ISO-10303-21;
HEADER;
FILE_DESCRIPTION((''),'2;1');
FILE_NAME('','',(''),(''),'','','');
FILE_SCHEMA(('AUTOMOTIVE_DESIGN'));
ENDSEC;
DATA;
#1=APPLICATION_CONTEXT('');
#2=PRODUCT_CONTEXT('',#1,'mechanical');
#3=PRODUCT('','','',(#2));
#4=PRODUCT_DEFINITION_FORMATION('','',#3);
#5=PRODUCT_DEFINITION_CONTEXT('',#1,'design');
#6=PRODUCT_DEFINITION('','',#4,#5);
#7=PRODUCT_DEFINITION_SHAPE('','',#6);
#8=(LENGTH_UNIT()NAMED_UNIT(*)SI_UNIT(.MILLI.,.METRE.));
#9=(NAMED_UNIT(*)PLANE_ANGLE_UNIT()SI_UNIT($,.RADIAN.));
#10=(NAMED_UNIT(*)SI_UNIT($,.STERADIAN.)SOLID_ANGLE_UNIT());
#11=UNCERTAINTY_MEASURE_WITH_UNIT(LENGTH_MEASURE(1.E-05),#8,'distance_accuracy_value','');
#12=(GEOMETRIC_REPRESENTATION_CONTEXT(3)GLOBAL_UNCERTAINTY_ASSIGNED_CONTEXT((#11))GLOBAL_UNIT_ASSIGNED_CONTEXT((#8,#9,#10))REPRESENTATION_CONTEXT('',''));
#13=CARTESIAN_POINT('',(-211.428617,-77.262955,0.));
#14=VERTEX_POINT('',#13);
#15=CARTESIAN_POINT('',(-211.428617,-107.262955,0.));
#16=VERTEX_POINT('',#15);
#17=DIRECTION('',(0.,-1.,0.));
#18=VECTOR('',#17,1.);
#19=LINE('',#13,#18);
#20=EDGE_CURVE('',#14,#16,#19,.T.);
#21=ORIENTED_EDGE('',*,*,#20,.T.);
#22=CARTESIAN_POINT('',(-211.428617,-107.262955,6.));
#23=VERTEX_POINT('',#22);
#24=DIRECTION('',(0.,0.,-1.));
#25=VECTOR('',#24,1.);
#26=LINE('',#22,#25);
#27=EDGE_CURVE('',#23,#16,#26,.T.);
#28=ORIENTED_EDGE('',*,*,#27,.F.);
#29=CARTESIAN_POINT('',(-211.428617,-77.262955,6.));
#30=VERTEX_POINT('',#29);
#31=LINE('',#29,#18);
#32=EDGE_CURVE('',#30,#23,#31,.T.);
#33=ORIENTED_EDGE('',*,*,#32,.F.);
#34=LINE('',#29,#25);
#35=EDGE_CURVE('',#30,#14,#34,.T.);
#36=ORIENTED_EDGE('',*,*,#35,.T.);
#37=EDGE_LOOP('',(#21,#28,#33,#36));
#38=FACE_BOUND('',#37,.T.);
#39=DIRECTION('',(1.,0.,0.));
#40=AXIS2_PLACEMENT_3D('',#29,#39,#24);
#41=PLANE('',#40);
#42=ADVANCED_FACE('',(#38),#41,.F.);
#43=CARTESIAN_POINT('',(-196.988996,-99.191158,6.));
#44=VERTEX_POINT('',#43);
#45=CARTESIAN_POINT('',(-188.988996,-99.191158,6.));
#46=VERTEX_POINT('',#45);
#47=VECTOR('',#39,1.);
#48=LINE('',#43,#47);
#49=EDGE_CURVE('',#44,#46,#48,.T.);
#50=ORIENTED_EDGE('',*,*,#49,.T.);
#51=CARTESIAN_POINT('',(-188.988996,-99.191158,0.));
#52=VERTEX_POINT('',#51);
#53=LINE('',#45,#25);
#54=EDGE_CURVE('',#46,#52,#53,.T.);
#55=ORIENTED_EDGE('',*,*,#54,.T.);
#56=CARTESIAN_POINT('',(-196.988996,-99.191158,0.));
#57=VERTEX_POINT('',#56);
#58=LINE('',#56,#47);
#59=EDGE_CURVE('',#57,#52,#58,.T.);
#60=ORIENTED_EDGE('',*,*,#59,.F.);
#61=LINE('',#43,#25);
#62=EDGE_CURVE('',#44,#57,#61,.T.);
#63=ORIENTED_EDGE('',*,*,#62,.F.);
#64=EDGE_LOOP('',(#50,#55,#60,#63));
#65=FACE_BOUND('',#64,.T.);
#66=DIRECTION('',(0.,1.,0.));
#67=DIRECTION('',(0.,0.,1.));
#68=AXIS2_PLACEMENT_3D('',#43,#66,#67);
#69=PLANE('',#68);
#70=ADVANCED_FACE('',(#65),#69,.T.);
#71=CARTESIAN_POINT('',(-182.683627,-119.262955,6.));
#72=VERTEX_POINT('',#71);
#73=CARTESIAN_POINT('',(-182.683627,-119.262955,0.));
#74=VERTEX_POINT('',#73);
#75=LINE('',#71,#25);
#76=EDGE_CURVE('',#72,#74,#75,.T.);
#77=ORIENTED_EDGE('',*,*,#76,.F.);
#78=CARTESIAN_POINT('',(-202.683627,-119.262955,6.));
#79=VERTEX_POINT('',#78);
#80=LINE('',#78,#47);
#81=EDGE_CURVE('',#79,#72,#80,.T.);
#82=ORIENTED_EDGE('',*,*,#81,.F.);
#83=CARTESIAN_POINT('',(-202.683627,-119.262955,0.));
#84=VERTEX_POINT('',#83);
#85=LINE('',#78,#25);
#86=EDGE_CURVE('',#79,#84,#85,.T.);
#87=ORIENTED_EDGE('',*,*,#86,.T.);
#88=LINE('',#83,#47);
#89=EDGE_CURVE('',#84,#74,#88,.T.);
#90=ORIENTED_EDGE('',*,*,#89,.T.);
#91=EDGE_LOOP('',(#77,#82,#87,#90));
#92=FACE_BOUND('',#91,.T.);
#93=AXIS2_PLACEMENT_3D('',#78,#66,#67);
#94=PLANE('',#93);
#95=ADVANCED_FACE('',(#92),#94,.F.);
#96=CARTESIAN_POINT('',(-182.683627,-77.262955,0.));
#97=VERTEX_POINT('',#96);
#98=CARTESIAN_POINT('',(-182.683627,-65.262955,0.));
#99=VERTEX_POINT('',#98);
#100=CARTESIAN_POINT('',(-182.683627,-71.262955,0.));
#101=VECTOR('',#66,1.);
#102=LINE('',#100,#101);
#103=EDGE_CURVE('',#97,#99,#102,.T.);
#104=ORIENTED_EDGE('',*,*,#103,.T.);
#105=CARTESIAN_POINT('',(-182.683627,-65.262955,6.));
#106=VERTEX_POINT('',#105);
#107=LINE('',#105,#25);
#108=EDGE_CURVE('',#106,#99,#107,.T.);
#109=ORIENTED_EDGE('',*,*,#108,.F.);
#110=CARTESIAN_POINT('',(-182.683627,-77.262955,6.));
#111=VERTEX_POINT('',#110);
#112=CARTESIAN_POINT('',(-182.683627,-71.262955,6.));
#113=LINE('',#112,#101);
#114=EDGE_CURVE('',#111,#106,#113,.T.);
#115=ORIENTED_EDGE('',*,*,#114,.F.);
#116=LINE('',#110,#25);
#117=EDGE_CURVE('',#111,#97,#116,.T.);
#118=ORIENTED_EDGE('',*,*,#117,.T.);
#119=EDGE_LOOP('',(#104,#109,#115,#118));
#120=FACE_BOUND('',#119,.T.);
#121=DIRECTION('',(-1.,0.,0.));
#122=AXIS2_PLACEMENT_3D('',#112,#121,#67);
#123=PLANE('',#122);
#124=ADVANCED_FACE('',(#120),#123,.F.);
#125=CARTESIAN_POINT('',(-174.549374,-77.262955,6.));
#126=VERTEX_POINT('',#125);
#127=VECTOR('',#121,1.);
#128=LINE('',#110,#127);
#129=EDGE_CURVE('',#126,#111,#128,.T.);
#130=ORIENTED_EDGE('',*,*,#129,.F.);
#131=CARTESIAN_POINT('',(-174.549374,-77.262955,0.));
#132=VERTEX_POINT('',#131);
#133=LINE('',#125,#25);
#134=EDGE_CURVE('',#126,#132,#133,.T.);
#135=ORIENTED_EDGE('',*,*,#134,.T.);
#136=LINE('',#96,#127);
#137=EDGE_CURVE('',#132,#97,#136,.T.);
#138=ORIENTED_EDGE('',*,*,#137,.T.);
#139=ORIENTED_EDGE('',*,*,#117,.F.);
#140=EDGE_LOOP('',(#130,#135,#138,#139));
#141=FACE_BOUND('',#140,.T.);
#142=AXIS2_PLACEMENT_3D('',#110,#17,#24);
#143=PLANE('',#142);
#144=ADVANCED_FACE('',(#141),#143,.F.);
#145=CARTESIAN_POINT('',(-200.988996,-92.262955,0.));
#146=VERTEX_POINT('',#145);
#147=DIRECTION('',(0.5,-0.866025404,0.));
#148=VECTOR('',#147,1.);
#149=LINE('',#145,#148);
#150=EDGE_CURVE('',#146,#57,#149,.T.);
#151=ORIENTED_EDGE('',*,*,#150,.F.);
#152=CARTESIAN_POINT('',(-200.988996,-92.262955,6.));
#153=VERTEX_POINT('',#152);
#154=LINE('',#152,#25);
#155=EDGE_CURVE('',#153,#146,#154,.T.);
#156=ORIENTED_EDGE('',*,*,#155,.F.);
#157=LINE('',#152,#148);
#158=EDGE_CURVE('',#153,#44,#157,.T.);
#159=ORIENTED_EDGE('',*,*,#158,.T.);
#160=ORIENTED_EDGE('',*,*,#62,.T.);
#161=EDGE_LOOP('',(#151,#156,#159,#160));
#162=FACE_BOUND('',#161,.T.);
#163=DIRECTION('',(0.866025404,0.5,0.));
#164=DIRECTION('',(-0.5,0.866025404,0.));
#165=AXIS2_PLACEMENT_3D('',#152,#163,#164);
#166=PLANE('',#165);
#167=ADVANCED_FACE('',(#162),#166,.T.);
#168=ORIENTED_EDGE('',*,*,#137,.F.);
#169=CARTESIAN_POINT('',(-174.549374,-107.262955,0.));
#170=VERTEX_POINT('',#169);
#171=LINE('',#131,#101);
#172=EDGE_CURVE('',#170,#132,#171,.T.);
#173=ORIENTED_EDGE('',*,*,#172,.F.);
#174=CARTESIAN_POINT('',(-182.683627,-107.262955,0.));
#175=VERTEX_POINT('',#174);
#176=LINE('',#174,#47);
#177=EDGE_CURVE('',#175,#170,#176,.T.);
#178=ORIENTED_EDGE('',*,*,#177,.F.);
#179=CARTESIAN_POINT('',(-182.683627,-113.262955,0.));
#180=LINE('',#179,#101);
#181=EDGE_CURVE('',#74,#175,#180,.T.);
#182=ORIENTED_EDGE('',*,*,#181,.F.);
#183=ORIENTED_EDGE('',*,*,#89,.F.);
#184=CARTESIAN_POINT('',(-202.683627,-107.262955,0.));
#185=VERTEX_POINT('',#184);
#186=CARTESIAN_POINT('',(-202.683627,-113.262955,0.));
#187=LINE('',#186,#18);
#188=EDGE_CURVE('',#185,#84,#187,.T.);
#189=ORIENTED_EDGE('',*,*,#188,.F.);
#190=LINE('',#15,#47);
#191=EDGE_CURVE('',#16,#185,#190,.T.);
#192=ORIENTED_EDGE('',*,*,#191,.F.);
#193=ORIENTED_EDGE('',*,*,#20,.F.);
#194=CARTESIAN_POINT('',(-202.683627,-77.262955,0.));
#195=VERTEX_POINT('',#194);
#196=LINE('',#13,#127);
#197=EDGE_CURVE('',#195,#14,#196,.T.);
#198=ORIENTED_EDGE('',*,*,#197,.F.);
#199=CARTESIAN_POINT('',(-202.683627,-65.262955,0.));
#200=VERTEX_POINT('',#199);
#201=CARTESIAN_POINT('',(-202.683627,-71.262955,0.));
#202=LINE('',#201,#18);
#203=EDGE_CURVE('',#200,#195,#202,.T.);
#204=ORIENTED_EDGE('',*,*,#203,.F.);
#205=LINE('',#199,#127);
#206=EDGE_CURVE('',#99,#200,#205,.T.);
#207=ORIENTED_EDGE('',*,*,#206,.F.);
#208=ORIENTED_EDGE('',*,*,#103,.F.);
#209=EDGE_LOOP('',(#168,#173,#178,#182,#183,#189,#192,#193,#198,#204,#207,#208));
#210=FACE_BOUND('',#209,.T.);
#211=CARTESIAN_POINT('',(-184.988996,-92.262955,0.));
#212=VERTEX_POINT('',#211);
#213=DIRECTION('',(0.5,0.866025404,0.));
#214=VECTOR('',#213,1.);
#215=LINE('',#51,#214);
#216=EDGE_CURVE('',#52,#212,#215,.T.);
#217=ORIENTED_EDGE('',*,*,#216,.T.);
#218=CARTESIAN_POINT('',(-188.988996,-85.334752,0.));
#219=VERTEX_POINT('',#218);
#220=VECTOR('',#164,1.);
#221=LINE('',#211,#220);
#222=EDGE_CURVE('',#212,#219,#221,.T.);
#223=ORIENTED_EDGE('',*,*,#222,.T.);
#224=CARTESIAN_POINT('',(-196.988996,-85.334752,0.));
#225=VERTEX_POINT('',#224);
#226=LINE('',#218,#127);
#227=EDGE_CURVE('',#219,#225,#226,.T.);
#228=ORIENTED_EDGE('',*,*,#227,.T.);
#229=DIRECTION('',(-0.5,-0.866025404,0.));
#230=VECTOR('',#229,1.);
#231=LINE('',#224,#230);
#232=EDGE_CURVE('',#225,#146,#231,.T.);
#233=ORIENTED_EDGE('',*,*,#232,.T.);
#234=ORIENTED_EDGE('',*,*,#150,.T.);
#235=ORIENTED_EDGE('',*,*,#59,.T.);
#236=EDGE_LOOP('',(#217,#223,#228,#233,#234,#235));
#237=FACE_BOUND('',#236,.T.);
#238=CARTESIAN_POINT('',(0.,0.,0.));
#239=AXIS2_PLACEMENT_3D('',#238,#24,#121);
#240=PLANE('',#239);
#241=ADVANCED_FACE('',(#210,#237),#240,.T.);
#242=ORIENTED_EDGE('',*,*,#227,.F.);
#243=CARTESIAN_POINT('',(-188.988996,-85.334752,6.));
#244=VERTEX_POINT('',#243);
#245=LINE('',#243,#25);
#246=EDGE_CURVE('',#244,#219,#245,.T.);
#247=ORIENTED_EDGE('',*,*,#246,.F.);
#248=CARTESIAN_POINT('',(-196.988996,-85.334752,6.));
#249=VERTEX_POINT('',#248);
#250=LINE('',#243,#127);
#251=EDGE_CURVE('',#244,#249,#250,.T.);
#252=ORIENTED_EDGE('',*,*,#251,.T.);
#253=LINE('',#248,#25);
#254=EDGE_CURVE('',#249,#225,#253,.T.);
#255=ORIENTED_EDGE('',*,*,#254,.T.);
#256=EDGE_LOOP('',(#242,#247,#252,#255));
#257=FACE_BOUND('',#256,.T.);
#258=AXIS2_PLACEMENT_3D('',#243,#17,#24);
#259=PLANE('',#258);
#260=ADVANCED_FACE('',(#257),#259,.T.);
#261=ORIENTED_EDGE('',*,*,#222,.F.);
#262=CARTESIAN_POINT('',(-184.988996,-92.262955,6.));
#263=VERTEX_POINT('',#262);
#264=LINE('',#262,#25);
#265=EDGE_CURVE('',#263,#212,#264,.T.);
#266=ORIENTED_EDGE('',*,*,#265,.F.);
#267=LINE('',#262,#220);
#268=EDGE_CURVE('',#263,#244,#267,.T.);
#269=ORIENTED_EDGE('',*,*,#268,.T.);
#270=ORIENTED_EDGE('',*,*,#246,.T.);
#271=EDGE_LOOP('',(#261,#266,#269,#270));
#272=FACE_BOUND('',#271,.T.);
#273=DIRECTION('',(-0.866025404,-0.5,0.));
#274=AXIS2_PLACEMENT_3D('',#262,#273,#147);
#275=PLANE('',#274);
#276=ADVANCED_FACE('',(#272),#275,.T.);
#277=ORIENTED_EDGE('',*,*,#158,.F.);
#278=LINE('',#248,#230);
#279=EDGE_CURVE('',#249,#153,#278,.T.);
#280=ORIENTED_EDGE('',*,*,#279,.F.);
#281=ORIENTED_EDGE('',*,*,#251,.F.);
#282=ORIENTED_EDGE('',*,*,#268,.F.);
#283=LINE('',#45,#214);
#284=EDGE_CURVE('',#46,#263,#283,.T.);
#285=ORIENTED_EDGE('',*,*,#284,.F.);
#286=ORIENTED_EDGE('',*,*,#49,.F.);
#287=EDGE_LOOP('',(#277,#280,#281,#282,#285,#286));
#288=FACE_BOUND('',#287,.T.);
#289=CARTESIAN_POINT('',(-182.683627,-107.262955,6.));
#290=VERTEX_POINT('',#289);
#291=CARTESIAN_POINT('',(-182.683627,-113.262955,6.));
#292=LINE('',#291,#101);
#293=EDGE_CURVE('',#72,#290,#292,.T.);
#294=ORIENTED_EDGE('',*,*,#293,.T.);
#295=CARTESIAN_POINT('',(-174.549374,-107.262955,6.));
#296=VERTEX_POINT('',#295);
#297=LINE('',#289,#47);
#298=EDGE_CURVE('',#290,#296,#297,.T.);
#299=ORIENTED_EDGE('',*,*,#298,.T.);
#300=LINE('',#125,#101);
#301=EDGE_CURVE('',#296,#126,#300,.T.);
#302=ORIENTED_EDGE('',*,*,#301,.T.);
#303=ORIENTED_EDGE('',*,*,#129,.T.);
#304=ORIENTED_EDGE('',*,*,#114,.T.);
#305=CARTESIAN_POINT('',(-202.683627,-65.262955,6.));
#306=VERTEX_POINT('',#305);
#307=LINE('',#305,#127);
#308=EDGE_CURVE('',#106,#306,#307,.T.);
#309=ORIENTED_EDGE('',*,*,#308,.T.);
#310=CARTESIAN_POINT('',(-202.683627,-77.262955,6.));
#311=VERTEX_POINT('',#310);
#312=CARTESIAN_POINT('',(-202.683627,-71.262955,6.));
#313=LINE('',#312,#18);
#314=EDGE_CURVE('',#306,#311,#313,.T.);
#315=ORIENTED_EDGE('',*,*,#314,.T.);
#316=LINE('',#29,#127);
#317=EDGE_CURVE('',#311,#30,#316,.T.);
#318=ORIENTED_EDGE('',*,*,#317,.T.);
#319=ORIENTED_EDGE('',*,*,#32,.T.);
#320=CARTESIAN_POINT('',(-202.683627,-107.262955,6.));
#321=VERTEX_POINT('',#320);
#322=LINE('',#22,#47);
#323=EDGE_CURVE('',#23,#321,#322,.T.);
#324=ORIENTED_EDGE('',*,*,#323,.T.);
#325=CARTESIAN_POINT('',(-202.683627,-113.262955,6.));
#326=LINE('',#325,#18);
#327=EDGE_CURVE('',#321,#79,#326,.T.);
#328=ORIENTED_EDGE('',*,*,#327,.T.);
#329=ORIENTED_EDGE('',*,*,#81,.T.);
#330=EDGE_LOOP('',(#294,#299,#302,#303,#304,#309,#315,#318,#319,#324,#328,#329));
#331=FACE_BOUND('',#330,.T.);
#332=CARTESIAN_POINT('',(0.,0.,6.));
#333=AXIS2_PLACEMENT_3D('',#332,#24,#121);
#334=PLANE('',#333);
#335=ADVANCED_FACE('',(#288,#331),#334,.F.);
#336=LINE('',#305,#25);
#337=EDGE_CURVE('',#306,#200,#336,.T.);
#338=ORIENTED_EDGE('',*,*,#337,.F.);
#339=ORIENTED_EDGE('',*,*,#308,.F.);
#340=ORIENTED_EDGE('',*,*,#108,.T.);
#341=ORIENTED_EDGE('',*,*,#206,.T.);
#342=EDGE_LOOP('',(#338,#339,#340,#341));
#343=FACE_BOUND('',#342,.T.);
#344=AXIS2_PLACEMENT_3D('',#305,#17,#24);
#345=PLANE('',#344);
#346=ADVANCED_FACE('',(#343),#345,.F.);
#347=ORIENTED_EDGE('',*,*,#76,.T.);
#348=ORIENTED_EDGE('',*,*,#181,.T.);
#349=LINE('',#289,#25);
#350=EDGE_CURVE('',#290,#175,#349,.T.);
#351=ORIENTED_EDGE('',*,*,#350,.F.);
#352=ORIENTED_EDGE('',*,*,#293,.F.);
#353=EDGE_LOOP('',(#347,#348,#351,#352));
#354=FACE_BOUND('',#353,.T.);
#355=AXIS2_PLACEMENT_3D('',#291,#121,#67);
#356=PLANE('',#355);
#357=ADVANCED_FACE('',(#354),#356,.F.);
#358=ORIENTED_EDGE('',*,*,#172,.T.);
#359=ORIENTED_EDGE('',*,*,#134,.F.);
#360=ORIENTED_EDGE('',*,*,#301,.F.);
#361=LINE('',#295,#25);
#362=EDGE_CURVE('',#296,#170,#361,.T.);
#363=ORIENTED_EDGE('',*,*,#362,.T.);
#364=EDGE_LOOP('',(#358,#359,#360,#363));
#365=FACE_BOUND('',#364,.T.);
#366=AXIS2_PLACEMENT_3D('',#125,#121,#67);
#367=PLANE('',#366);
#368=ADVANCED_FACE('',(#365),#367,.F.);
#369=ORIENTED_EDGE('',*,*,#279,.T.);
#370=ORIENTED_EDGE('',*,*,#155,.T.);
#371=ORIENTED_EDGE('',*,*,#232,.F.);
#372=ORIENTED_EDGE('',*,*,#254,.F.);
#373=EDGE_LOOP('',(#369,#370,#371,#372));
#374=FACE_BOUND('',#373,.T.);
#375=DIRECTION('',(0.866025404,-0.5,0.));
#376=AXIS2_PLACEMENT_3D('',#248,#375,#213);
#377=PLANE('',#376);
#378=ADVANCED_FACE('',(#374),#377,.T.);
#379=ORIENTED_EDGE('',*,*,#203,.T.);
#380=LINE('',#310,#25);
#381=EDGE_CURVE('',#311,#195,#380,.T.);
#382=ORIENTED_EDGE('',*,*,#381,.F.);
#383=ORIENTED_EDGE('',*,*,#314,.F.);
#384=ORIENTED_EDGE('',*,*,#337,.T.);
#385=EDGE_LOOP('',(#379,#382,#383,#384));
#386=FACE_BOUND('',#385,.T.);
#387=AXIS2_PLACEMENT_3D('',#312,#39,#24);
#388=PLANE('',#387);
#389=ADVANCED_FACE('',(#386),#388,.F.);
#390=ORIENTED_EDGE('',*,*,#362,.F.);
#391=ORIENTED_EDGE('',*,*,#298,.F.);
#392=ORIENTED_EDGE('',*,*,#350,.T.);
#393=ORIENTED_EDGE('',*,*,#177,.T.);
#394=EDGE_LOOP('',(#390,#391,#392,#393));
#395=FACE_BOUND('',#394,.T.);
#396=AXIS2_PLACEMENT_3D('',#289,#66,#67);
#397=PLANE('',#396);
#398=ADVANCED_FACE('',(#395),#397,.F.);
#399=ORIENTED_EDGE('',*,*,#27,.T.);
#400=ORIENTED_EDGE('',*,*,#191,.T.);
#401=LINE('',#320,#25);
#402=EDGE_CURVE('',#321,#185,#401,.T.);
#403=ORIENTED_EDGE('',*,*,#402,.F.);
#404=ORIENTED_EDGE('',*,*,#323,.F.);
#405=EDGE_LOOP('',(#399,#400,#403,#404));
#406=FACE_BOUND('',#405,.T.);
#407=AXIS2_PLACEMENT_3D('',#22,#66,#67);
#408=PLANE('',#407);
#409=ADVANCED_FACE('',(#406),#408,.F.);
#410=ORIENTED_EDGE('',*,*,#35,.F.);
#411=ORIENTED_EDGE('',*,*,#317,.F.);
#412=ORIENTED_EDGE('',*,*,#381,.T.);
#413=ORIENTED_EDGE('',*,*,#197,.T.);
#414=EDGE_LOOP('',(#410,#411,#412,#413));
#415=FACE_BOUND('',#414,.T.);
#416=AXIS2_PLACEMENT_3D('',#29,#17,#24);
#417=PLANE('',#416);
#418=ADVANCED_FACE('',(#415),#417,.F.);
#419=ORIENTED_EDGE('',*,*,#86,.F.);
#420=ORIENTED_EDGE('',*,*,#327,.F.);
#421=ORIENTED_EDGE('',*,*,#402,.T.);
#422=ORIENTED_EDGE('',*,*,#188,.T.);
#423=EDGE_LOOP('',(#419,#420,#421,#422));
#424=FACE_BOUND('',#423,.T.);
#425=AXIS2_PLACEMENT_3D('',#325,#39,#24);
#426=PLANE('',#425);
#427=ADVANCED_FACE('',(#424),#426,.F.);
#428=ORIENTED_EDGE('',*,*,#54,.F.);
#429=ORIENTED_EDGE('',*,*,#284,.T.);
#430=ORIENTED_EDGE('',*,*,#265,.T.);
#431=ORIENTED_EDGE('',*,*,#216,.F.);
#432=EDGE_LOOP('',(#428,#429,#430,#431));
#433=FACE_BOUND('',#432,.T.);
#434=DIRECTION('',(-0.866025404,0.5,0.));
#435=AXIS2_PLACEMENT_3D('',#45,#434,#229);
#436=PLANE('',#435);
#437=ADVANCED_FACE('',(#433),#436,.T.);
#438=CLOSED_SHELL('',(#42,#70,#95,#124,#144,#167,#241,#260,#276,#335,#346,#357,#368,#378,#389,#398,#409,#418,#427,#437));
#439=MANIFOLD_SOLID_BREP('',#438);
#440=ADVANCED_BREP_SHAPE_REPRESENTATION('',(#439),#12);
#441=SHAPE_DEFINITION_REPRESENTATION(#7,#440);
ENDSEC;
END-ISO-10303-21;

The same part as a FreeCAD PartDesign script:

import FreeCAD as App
import Part
import Sketcher

V = App.Vector
Q = App.Units.Quantity


def add_polygon(sketch, points):
    """Adds a closed chain of lines whose ends are joined by coincident constraints."""
    first, n = sketch.GeometryCount, len(points)
    for a, b in zip(points, points[1:] + points[:1]):
        sketch.addGeometry(Part.LineSegment(App.Vector(*a, 0), App.Vector(*b, 0)), False)
    for i in range(n):
        sketch.addConstraint(Sketcher.Constraint("Coincident", first + i, 2, first + (i + 1) % n, 1))

doc = App.newDocument("Part")
body = doc.addObject("PartDesign::Body", "Body")

# Sketch on XY plane
sketch1 = doc.addObject("Sketcher::SketchObject", "Sketch")
body.addObject(sketch1)
sketch1.AttachmentSupport = (doc.XY_Plane, [""])
sketch1.MapMode = "FlatFace"
add_polygon(sketch1, [(-211, -77), (-211, -107), (-203, -107), (-203, -119), (-183, -119), (-183, -107), (-175, -107), (-175, -77), (-183, -77), (-183, -65), (-203, -65), (-203, -77)])  # lines 0-11
add_polygon(sketch1, [(-189, -85), (-185, -92), (-189, -99), (-197, -99), (-201, -92), (-197, -85)])  # lines 12-17
sketch1.addConstraint([
    Sketcher.Constraint("Vertical", 0),
    Sketcher.Constraint("Horizontal", 1),
    Sketcher.Constraint("Vertical", 2),
    Sketcher.Constraint("Horizontal", 3),
    Sketcher.Constraint("Vertical", 4),
    Sketcher.Constraint("Horizontal", 5),
    Sketcher.Constraint("Vertical", 6),
    Sketcher.Constraint("Horizontal", 7),
    Sketcher.Constraint("Vertical", 8),
    Sketcher.Constraint("Horizontal", 9),
    Sketcher.Constraint("Vertical", 10),
    Sketcher.Constraint("Horizontal", 11),
    Sketcher.Constraint("Horizontal", 14),
    Sketcher.Constraint("Horizontal", 17),
    Sketcher.Constraint("Parallel", 12, 15),
    Sketcher.Constraint("Parallel", 13, 16),
    Sketcher.Constraint("Horizontal", 1, 2, 4, 2),
    Sketcher.Constraint("Horizontal", 7, 2, 10, 2),
    Sketcher.Constraint("Horizontal", 12, 2, 15, 2),
    Sketcher.Constraint("Vertical", 4, 2, 7, 2),
    Sketcher.Constraint("Vertical", 2, 2, 9, 2),
    Sketcher.Constraint("Vertical", 14, 2, 16, 2),
    Sketcher.Constraint("Vertical", 13, 2, 17, 2),
    Sketcher.Constraint("Equal", 4, 8),
    Sketcher.Constraint("DistanceX", 3, 1, 3, 2, 20.0),
    Sketcher.Constraint("DistanceX", 14, 2, 14, 1, 8.0),
    Sketcher.Constraint("DistanceY", 0, 2, 0, 1, 30.0),
    Sketcher.Constraint("DistanceY", 2, 2, 2, 1, 12.0),
    Sketcher.Constraint("Angle", 12, Q("-60 deg")),
    Sketcher.Constraint("Distance", 12, 8.0),
    Sketcher.Constraint("DistanceY", 4, 2, 12, 2, 15.0),
    Sketcher.Constraint("DistanceX", 1, 1, 1, 2, 8.74499),
    Sketcher.Constraint("DistanceX", 5, 1, 5, 2, 8.134253),
    Sketcher.Constraint("DistanceY", 13, 2, -1, 1, 99.191158),
    Sketcher.Constraint("DistanceX", 12, 2, 4, 2, 2.305368),
    Sketcher.Constraint("DistanceX", 0, 2, -1, 1, 211.428617),
])
pad1 = doc.addObject("PartDesign::Pad", "Pad")
body.addObject(pad1)
pad1.Profile = sketch1
pad1.Length = 6

doc.recompute()
